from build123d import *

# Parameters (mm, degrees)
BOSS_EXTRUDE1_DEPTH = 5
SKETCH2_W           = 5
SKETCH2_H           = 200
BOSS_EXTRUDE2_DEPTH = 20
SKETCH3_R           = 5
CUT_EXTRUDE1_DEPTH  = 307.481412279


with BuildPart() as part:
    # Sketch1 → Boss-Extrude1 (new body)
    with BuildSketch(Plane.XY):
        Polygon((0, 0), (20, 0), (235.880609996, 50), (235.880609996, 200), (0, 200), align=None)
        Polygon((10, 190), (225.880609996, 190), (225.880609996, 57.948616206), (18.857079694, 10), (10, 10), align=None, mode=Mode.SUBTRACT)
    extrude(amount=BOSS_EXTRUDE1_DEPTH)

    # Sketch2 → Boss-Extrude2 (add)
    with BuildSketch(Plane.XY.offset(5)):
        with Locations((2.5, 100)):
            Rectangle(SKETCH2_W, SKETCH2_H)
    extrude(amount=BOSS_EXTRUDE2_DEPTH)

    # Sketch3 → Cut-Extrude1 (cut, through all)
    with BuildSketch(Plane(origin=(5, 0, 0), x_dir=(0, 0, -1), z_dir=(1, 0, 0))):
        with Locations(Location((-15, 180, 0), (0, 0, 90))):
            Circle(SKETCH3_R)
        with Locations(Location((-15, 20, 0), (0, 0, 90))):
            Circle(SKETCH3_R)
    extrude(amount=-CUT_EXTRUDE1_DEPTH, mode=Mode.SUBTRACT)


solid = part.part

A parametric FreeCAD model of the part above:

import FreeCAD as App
import Part
import Sketcher
from FreeCAD import Vector

doc = App.newDocument("Part")
body = doc.addObject("PartDesign::Body", "Body")

# Sketch on XY plane
sketch1 = body.newObject("Sketcher::SketchObject", "Sketch")
sketch1.AttachmentSupport = (doc.getObject("XY_Plane"), [""])
sketch1.MapMode = "FlatFace"
sketch1.addGeometry([
    Part.LineSegment(Vector(0, 0, 0), Vector(20, 0, 0)),  # 0
    Part.LineSegment(Vector(20, 0, 0), Vector(235.88061, 50, 0)),  # 1
    Part.LineSegment(Vector(235.88061, 50, 0), Vector(235.88061, 200, 0)),  # 2
    Part.LineSegment(Vector(235.88061, 200, 0), Vector(0, 200, 0)),  # 3
    Part.LineSegment(Vector(0, 200, 0), Vector(0, 0, 0)),  # 4
    Part.LineSegment(Vector(10, 10, 0), Vector(10, 190, 0)),  # 5
    Part.LineSegment(Vector(10, 190, 0), Vector(225.88061, 190, 0)),  # 6
    Part.LineSegment(Vector(225.88061, 190, 0), Vector(225.88061, 57.948616, 0)),  # 7
    Part.LineSegment(Vector(225.88061, 57.948616, 0), Vector(18.85708, 10, 0)),  # 8
    Part.LineSegment(Vector(18.85708, 10, 0), Vector(10, 10, 0)),  # 9
], False)
sketch1.addConstraint([
    Sketcher.Constraint("Coincident", 0, 2, 1, 1),
    Sketcher.Constraint("Coincident", 1, 2, 2, 1),
    Sketcher.Constraint("Coincident", 2, 2, 3, 1),
    Sketcher.Constraint("Coincident", 3, 2, 4, 1),
    Sketcher.Constraint("Coincident", 4, 2, 0, 1),
    Sketcher.Constraint("Coincident", 5, 2, 6, 1),
    Sketcher.Constraint("Coincident", 6, 2, 7, 1),
    Sketcher.Constraint("Coincident", 7, 2, 8, 1),
    Sketcher.Constraint("Coincident", 8, 2, 9, 1),
    Sketcher.Constraint("Coincident", 9, 2, 5, 1),
    Sketcher.Constraint("Horizontal", 0),
    Sketcher.Constraint("Vertical", 2),
    Sketcher.Constraint("Horizontal", 3),
    Sketcher.Constraint("Vertical", 4),
    Sketcher.Constraint("Vertical", 5),
    Sketcher.Constraint("Horizontal", 6),
    Sketcher.Constraint("Vertical", 7),
    Sketcher.Constraint("Horizontal", 9),
    Sketcher.Constraint("Coincident", 4, 2, -1, 1),
    Sketcher.Constraint("Parallel", 1, 8),
    Sketcher.Constraint("DistanceX", 0, 1, 0, 2, 20.0),
    Sketcher.Constraint("DistanceY", 2, 1, 2, 2, 150.0),
    Sketcher.Constraint("DistanceY", 4, 2, 4, 1, 200.0),
    Sketcher.Constraint("DistanceY", 5, 1, 5, 2, 180.0),
    Sketcher.Constraint("DistanceX", -1, 1, 5, 2, 10.0),
    Sketcher.Constraint("DistanceY", -1, 1, 5, 2, 190.0),
    Sketcher.Constraint("DistanceX", 6, 2, 2, 2, 10.0),
    Sketcher.Constraint("DistanceX", 3, 2, 3, 1, 235.88061),
    Sketcher.Constraint("DistanceX", 9, 2, 9, 1, 8.85708),
])
pad1 = body.newObject("PartDesign::Pad", "Pad")
pad1.Profile = sketch1
pad1.Length = 5

# Sketch on XY plane
sketch2 = body.newObject("Sketcher::SketchObject", "Sketch001")
sketch2.AttachmentSupport = (doc.getObject("XY_Plane"), [""])
sketch2.MapMode = "FlatFace"
sketch2.AttachmentOffset = App.Placement(Vector(0, 0, 5), App.Rotation())
sketch2.addGeometry([
    Part.LineSegment(Vector(0, 200, 0), Vector(0, 0, 0)),
    Part.LineSegment(Vector(0, 0, 0), Vector(5, 0, 0)),
    Part.LineSegment(Vector(5, 0, 0), Vector(5, 200, 0)),
    Part.LineSegment(Vector(5, 200, 0), Vector(0, 200, 0)),
], False)
sketch2.addConstraint([
    Sketcher.Constraint("Coincident", 0, 2, 1, 1),
    Sketcher.Constraint("Coincident", 1, 2, 2, 1),
    Sketcher.Constraint("Coincident", 2, 2, 3, 1),
    Sketcher.Constraint("Coincident", 3, 2, 0, 1),
    Sketcher.Constraint("Vertical", 0),
    Sketcher.Constraint("Horizontal", 1),
    Sketcher.Constraint("Vertical", 2),
    Sketcher.Constraint("Horizontal", 3),
    Sketcher.Constraint("Coincident", 0, 2, -1, 1),
    Sketcher.Constraint("DistanceX", 1, 1, 1, 2, 5.0),
    Sketcher.Constraint("DistanceY", 0, 2, 0, 1, 200.0),
])
pad2 = body.newObject("PartDesign::Pad", "Pad001")
pad2.Profile = sketch2
pad2.Length = 20

# Sketch on YZ plane
sketch3 = body.newObject("Sketcher::SketchObject", "Sketch002")
sketch3.AttachmentSupport = (doc.getObject("YZ_Plane"), [""])
sketch3.MapMode = "FlatFace"
sketch3.AttachmentOffset = App.Placement(Vector(0, 0, 5), App.Rotation())
sketch3.addGeometry([
    Part.Circle(Vector(180, 15, 0), Vector(0, 0, 1), 5),
    Part.Circle(Vector(20, 15, 0), Vector(0, 0, 1), 5),
], False)
sketch3.addConstraint([
    Sketcher.Constraint("Equal", 0, 1),
    Sketcher.Constraint("Horizontal", 0, 3, 1, 3),
    Sketcher.Constraint("Diameter", 0, 10.0),
    Sketcher.Constraint("DistanceX", -1, 1, 0, 3, 180.0),
    Sketcher.Constraint("DistanceY", -1, 1, 0, 3, 15.0),
    Sketcher.Constraint("DistanceX", -1, 1, 1, 3, 20.0),
])
pocket1 = body.newObject("PartDesign::Pocket", "Pocket")
pocket1.Profile = sketch3
pocket1.Type = "ThroughAll"

doc.recompute()
